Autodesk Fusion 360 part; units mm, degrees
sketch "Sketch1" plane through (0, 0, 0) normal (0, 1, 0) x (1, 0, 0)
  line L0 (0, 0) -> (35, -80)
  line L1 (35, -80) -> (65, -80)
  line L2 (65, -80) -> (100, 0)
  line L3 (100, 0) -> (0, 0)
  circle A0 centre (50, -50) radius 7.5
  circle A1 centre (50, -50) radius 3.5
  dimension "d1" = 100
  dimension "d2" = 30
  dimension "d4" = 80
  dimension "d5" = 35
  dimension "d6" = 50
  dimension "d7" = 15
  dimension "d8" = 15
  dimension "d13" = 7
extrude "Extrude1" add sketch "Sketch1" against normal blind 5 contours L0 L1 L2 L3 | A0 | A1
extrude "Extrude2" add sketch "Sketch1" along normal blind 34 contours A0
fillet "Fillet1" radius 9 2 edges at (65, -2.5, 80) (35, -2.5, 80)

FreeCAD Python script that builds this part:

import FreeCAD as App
import Part
import Sketcher

V = App.Vector
Q = App.Units.Quantity


def edges_at(feature, points):
    """Names of the edges that pass closest to the given points."""
    edges = feature.Shape.Edges
    near = lambda p: min(range(len(edges)), key=lambda i: edges[i].distToShape(Part.Vertex(*p))[0])
    return sorted({f"Edge{near(p) + 1}" for p in points})

doc = App.newDocument("Part")
params = doc.addObject("Spreadsheet::Sheet", "Params")
for row, (alias, value) in enumerate([
    ("sketch1_width", "100 mm"),
    ("sketch1_width2", "30 mm"),
    ("pad1_length", "5 mm"),
    ("sketch2_diameter", "15 mm"),
    ("sketch2_diameter2", "7 mm"),
    ("pad2_length", "34 mm"),
    ("fillet_radius", "9 mm"),
], start=1):
    params.set(f"A{row}", alias)
    params.set(f"B{row}", "=" + value)
    params.setAlias(f"B{row}", alias)

body = doc.addObject("PartDesign::Body", "Body")

# Sketch on XZ plane
sketch1 = body.newObject("Sketcher::SketchObject", "Sketch")
sketch1.AttachmentSupport = (doc.getObject("XZ_Plane"), [""])
sketch1.MapMode = "FlatFace"
sketch1.addGeometry([
    Part.LineSegment(V(100, 0, 0), V(0, 0, 0)),
    Part.LineSegment(V(0, 0, 0), V(35, 80, 0)),
    Part.LineSegment(V(35, 80, 0), V(65, 80, 0)),
    Part.LineSegment(V(65, 80, 0), V(100, 0, 0)),
], False)
sketch1.addConstraint([
    Sketcher.Constraint("Coincident", 0, 2, 1, 1),
    Sketcher.Constraint("Coincident", 1, 2, 2, 1),
    Sketcher.Constraint("Coincident", 2, 2, 3, 1),
    Sketcher.Constraint("Coincident", 3, 2, 0, 1),
    Sketcher.Constraint("Horizontal", 0),
    Sketcher.Constraint("Horizontal", 2),
    Sketcher.Constraint("Coincident", 0, 2, -1, 1),
    Sketcher.Constraint("Equal", 1, 3),
    Sketcher.Constraint("DistanceX", 0, 2, 0, 1, Q("100 mm")),
    Sketcher.Constraint("DistanceX", 2, 1, 2, 2, Q("30 mm")),
    Sketcher.Constraint("DistanceY", -1, 1, 1, 2, Q("80 mm")),
])
sketch1.setExpression("Constraints[8]", "Params.sketch1_width")
sketch1.setExpression("Constraints[9]", "Params.sketch1_width2")
pad1 = body.newObject("PartDesign::Pad", "Pad")
pad1.Profile = sketch1
pad1.setExpression("Length", "Params.pad1_length")

# Sketch on XZ plane
sketch2 = body.newObject("Sketcher::SketchObject", "Sketch001")
sketch2.AttachmentSupport = (doc.getObject("XZ_Plane"), [""])
sketch2.MapMode = "FlatFace"
sketch2.addGeometry([
    Part.Circle(V(50, 50, 0), V(0, 0, 1), 7.5),
    Part.Circle(V(50, 50, 0), V(0, 0, 1), 3.5),
], False)
sketch2.addConstraint([
    Sketcher.Constraint("Coincident", 1, 3, 0, 3),
    Sketcher.Constraint("Diameter", 0, Q("15 mm")),
    Sketcher.Constraint("Diameter", 1, Q("7 mm")),
    Sketcher.Constraint("DistanceX", -1, 1, 0, 3, Q("50 mm")),
    Sketcher.Constraint("DistanceY", -1, 1, 0, 3, Q("50 mm")),
])
sketch2.setExpression("Constraints[1]", "Params.sketch2_diameter")
sketch2.setExpression("Constraints[2]", "Params.sketch2_diameter2")
pad2 = body.newObject("PartDesign::Pad", "Pad001")
pad2.Profile = sketch2
pad2.setExpression("Length", "Params.pad2_length")
pad2.Reversed = True
doc.recompute()

fillet = body.newObject("PartDesign::Fillet", "Fillet")
fillet.Base = (pad2, edges_at(pad2, [(65, -2.5, 80), (35, -2.5, 80)]))
fillet.setExpression("Radius", "Params.fillet_radius")

doc.recompute()
